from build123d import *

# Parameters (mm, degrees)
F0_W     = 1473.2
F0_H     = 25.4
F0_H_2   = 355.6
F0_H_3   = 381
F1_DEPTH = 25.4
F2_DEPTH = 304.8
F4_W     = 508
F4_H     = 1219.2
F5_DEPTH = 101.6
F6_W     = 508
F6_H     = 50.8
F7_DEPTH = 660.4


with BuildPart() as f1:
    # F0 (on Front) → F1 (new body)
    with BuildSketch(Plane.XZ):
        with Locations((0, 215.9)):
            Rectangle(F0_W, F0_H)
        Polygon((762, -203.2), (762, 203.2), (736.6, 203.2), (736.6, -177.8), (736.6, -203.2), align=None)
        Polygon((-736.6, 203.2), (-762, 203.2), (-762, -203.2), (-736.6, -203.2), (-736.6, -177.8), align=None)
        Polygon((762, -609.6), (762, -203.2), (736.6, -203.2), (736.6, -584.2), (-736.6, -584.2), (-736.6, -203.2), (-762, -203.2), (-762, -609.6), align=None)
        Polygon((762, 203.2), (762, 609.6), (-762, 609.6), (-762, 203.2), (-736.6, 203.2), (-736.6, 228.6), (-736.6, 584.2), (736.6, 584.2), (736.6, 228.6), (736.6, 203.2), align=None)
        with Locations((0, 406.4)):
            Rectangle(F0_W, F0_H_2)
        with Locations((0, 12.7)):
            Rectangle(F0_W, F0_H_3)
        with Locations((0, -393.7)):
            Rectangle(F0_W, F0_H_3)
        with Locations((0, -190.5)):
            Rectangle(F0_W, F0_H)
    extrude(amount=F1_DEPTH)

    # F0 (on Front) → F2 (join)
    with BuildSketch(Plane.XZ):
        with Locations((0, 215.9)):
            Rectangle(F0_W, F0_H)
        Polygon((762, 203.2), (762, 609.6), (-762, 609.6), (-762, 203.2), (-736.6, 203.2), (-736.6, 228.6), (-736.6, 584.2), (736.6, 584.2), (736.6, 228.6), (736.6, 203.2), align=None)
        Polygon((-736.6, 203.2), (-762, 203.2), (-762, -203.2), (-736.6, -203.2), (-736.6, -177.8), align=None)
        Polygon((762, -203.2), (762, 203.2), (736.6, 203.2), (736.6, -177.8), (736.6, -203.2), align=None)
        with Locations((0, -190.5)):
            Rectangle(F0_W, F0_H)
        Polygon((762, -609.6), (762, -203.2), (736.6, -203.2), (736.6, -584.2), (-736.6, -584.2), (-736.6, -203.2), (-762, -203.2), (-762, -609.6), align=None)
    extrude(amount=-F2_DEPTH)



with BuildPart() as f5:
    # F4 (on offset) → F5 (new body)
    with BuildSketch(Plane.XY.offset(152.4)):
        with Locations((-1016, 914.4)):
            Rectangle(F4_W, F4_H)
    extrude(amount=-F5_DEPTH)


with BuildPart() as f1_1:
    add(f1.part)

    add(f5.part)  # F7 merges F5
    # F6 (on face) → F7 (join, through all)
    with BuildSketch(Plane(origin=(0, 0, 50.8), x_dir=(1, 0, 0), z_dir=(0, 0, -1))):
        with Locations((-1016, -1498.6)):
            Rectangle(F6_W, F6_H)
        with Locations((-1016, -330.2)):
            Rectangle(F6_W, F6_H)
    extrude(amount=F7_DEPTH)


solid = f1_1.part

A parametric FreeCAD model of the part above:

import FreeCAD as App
import Part
import Sketcher

V = App.Vector
Q = App.Units.Quantity


def add_polygon(sketch, points):
    """Adds a closed chain of lines whose ends are joined by coincident constraints."""
    first, n = sketch.GeometryCount, len(points)
    for a, b in zip(points, points[1:] + points[:1]):
        sketch.addGeometry(Part.LineSegment(App.Vector(*a, 0), App.Vector(*b, 0)), False)
    for i in range(n):
        sketch.addConstraint(Sketcher.Constraint("Coincident", first + i, 2, first + (i + 1) % n, 1))

doc = App.newDocument("Part")
params = doc.addObject("Spreadsheet::Sheet", "Params")
for row, (alias, value) in enumerate([
    ("sketch1_width", "60 in"),
    ("sketch1_height", "48 in"),
    ("pad1_length", "1 in"),
    ("sketch2_width", "60 in"),
    ("sketch2_width2", "58 in"),
    ("sketch2_height", "48 in"),
    ("sketch2_height2", "15 in"),
    ("sketch2_height3", "14 in"),
    ("pad2_length", "12 in"),
    ("sketch3_width", "20 in"),
    ("sketch3_height", "48 in"),
    ("pad3_length", "4 in"),
    ("sketch4_width", "20 in"),
    ("sketch4_height", "2 in"),
    ("pad4_length", "26 in"),
], start=1):
    params.set(f"A{row}", alias)
    params.set(f"B{row}", "=" + value)
    params.setAlias(f"B{row}", alias)

body = doc.addObject("PartDesign::Body", "Body")

# Sketch on XZ plane
sketch1 = body.newObject("Sketcher::SketchObject", "Sketch")
sketch1.AttachmentSupport = (doc.getObject("XZ_Plane"), [""])
sketch1.MapMode = "FlatFace"
add_polygon(sketch1, [(762, 609.6), (-762, 609.6), (-762, -609.6), (762, -609.6)])  # lines 0-3
sketch1.addConstraint([
    Sketcher.Constraint("Horizontal", 0),
    Sketcher.Constraint("Vertical", 1),
    Sketcher.Constraint("Horizontal", 2),
    Sketcher.Constraint("Vertical", 3),
    Sketcher.Constraint("Symmetric", 0, 2, 2, 2, -1, 1),
    Sketcher.Constraint("DistanceX", 0, 2, 0, 1, Q("60 in")),
    Sketcher.Constraint("DistanceY", 1, 2, 1, 1, Q("48 in")),
])
sketch1.setExpression("Constraints[9]", "Params.sketch1_width")
sketch1.setExpression("Constraints[10]", "Params.sketch1_height")
pad1 = body.newObject("PartDesign::Pad", "Pad")
pad1.Profile = sketch1
pad1.setExpression("Length", "Params.pad1_length")

# Sketch on XZ plane
sketch2 = body.newObject("Sketcher::SketchObject", "Sketch001")
sketch2.AttachmentSupport = (doc.getObject("XZ_Plane"), [""])
sketch2.MapMode = "FlatFace"
add_polygon(sketch2, [(762, 609.6), (-762, 609.6), (-762, -609.6), (762, -609.6)])  # lines 0-3
add_polygon(sketch2, [(-736.6, -203.2), (736.6, -203.2), (736.6, -584.2), (-736.6, -584.2)])  # lines 4-7
add_polygon(sketch2, [(-736.6, -177.8), (-736.6, 203.2), (736.6, 203.2), (736.6, -177.8)])  # lines 8-11
add_polygon(sketch2, [(736.6, 228.6), (-736.6, 228.6), (-736.6, 584.2), (736.6, 584.2)])  # lines 12-15
sketch2.addConstraint([
    Sketcher.Constraint("Horizontal", 0),
    Sketcher.Constraint("Vertical", 1),
    Sketcher.Constraint("Horizontal", 2),
    Sketcher.Constraint("Vertical", 3),
    Sketcher.Constraint("Horizontal", 4),
    Sketcher.Constraint("Vertical", 5),
    Sketcher.Constraint("Horizontal", 6),
    Sketcher.Constraint("Vertical", 7),
    Sketcher.Constraint("Vertical", 8),
    Sketcher.Constraint("Horizontal", 9),
    Sketcher.Constraint("Vertical", 10),
    Sketcher.Constraint("Horizontal", 11),
    Sketcher.Constraint("Horizontal", 12),
    Sketcher.Constraint("Vertical", 13),
    Sketcher.Constraint("Horizontal", 14),
    Sketcher.Constraint("Vertical", 15),
    Sketcher.Constraint("Symmetric", 0, 2, 2, 2, -1, 1),
    Sketcher.Constraint("Symmetric", 4, 2, 8, 2, -1, 1),
    Sketcher.Constraint("Symmetric", 5, 2, 13, 2, -1, 1),
    Sketcher.Constraint("Vertical", 7, 2, 8, 2),
    Sketcher.Constraint("Vertical", 5, 2, 9, 2),
    Sketcher.Constraint("Vertical", 10, 2, 14, 2),
    Sketcher.Constraint("Equal", 7, 8),
    Sketcher.Constraint("DistanceX", 0, 2, 0, 1, Q("60 in")),
    Sketcher.Constraint("DistanceX", 4, 1, 4, 2, Q("58 in")),
    Sketcher.Constraint("DistanceY", 1, 2, 1, 1, Q("48 in")),
    Sketcher.Constraint("DistanceY", 5, 2, 5, 1, Q("15 in")),
    Sketcher.Constraint("DistanceY", 13, 1, 13, 2, Q("14 in")),
    Sketcher.Constraint("DistanceY", 4, 2, -1, 1, Q("8 in")),
])
sketch2.setExpression("Constraints[39]", "Params.sketch2_width")
sketch2.setExpression("Constraints[40]", "Params.sketch2_width2")
sketch2.setExpression("Constraints[41]", "Params.sketch2_height")
sketch2.setExpression("Constraints[42]", "Params.sketch2_height2")
sketch2.setExpression("Constraints[43]", "Params.sketch2_height3")
pad2 = body.newObject("PartDesign::Pad", "Pad001")
pad2.Profile = sketch2
pad2.setExpression("Length", "Params.pad2_length")
pad2.Reversed = True
body2 = doc.addObject("PartDesign::Body", "Body001")

# Sketch on XY plane
sketch3 = body2.newObject("Sketcher::SketchObject", "Sketch002")
sketch3.AttachmentSupport = (doc.getObject("XY_Plane001"), [""])
sketch3.MapMode = "FlatFace"
sketch3.AttachmentOffset = App.Placement(V(0, 0, 6 * 25.4), App.Rotation())
add_polygon(sketch3, [(-1270, 1524), (-1270, 304.8), (-762, 304.8), (-762, 1524)])  # lines 0-3
sketch3.addConstraint([
    Sketcher.Constraint("Vertical", 0),
    Sketcher.Constraint("Horizontal", 1),
    Sketcher.Constraint("Vertical", 2),
    Sketcher.Constraint("Horizontal", 3),
    Sketcher.Constraint("DistanceX", 1, 1, 1, 2, Q("20 in")),
    Sketcher.Constraint("DistanceY", 0, 2, 0, 1, Q("48 in")),
    Sketcher.Constraint("DistanceX", 0, 2, -1, 1, Q("50 in")),
    Sketcher.Constraint("DistanceY", -1, 1, 0, 2, Q("12 in")),
])
sketch3.setExpression("Constraints[8]", "Params.sketch3_width")
sketch3.setExpression("Constraints[9]", "Params.sketch3_height")
pad3 = body2.newObject("PartDesign::Pad", "Pad002")
pad3.Profile = sketch3
pad3.setExpression("Length", "Params.pad3_length")
pad3.Reversed = True
body.AllowCompound = True
doc.recompute()

boolean = body.newObject("PartDesign::Boolean", "Boolean")
boolean.Type = "Fuse"
boolean.addObjects([body2])

# Sketch on XY plane
sketch4 = body.newObject("Sketcher::SketchObject", "Sketch003")
sketch4.AttachmentSupport = (doc.getObject("XY_Plane"), [""])
sketch4.MapMode = "FlatFace"
sketch4.AttachmentOffset = App.Placement(V(0, 0, 2 * 25.4), App.Rotation())
add_polygon(sketch4, [(-1270, 1473.2), (-1270, 1524), (-762, 1524), (-762, 1473.2)])  # lines 0-3
add_polygon(sketch4, [(-1270, 304.8), (-1270, 355.6), (-762, 355.6), (-762, 304.8)])  # lines 4-7
sketch4.addConstraint([
    Sketcher.Constraint("Vertical", 0),
    Sketcher.Constraint("Horizontal", 1),
    Sketcher.Constraint("Vertical", 2),
    Sketcher.Constraint("Horizontal", 3),
    Sketcher.Constraint("Vertical", 4),
    Sketcher.Constraint("Horizontal", 5),
    Sketcher.Constraint("Vertical", 6),
    Sketcher.Constraint("Horizontal", 7),
    Sketcher.Constraint("Vertical", 3, 2, 4, 2),
    Sketcher.Constraint("Vertical", 2, 2, 5, 2),
    Sketcher.Constraint("Equal", 2, 4),
    Sketcher.Constraint("DistanceX", 1, 1, 1, 2, Q("20 in")),
    Sketcher.Constraint("DistanceY", 0, 1, 0, 2, Q("2 in")),
    Sketcher.Constraint("DistanceX", 0, 2, -1, 1, Q("50 in")),
    Sketcher.Constraint("DistanceY", -1, 1, 0, 2, Q("60 in")),
    Sketcher.Constraint("DistanceY", -1, 1, 4, 2, Q("14 in")),
])
sketch4.setExpression("Constraints[19]", "Params.sketch4_width")
sketch4.setExpression("Constraints[20]", "Params.sketch4_height")
pad4 = body.newObject("PartDesign::Pad", "Pad003")
pad4.Profile = sketch4
pad4.setExpression("Length", "Params.pad4_length")
pad4.Reversed = True

doc.recompute()
